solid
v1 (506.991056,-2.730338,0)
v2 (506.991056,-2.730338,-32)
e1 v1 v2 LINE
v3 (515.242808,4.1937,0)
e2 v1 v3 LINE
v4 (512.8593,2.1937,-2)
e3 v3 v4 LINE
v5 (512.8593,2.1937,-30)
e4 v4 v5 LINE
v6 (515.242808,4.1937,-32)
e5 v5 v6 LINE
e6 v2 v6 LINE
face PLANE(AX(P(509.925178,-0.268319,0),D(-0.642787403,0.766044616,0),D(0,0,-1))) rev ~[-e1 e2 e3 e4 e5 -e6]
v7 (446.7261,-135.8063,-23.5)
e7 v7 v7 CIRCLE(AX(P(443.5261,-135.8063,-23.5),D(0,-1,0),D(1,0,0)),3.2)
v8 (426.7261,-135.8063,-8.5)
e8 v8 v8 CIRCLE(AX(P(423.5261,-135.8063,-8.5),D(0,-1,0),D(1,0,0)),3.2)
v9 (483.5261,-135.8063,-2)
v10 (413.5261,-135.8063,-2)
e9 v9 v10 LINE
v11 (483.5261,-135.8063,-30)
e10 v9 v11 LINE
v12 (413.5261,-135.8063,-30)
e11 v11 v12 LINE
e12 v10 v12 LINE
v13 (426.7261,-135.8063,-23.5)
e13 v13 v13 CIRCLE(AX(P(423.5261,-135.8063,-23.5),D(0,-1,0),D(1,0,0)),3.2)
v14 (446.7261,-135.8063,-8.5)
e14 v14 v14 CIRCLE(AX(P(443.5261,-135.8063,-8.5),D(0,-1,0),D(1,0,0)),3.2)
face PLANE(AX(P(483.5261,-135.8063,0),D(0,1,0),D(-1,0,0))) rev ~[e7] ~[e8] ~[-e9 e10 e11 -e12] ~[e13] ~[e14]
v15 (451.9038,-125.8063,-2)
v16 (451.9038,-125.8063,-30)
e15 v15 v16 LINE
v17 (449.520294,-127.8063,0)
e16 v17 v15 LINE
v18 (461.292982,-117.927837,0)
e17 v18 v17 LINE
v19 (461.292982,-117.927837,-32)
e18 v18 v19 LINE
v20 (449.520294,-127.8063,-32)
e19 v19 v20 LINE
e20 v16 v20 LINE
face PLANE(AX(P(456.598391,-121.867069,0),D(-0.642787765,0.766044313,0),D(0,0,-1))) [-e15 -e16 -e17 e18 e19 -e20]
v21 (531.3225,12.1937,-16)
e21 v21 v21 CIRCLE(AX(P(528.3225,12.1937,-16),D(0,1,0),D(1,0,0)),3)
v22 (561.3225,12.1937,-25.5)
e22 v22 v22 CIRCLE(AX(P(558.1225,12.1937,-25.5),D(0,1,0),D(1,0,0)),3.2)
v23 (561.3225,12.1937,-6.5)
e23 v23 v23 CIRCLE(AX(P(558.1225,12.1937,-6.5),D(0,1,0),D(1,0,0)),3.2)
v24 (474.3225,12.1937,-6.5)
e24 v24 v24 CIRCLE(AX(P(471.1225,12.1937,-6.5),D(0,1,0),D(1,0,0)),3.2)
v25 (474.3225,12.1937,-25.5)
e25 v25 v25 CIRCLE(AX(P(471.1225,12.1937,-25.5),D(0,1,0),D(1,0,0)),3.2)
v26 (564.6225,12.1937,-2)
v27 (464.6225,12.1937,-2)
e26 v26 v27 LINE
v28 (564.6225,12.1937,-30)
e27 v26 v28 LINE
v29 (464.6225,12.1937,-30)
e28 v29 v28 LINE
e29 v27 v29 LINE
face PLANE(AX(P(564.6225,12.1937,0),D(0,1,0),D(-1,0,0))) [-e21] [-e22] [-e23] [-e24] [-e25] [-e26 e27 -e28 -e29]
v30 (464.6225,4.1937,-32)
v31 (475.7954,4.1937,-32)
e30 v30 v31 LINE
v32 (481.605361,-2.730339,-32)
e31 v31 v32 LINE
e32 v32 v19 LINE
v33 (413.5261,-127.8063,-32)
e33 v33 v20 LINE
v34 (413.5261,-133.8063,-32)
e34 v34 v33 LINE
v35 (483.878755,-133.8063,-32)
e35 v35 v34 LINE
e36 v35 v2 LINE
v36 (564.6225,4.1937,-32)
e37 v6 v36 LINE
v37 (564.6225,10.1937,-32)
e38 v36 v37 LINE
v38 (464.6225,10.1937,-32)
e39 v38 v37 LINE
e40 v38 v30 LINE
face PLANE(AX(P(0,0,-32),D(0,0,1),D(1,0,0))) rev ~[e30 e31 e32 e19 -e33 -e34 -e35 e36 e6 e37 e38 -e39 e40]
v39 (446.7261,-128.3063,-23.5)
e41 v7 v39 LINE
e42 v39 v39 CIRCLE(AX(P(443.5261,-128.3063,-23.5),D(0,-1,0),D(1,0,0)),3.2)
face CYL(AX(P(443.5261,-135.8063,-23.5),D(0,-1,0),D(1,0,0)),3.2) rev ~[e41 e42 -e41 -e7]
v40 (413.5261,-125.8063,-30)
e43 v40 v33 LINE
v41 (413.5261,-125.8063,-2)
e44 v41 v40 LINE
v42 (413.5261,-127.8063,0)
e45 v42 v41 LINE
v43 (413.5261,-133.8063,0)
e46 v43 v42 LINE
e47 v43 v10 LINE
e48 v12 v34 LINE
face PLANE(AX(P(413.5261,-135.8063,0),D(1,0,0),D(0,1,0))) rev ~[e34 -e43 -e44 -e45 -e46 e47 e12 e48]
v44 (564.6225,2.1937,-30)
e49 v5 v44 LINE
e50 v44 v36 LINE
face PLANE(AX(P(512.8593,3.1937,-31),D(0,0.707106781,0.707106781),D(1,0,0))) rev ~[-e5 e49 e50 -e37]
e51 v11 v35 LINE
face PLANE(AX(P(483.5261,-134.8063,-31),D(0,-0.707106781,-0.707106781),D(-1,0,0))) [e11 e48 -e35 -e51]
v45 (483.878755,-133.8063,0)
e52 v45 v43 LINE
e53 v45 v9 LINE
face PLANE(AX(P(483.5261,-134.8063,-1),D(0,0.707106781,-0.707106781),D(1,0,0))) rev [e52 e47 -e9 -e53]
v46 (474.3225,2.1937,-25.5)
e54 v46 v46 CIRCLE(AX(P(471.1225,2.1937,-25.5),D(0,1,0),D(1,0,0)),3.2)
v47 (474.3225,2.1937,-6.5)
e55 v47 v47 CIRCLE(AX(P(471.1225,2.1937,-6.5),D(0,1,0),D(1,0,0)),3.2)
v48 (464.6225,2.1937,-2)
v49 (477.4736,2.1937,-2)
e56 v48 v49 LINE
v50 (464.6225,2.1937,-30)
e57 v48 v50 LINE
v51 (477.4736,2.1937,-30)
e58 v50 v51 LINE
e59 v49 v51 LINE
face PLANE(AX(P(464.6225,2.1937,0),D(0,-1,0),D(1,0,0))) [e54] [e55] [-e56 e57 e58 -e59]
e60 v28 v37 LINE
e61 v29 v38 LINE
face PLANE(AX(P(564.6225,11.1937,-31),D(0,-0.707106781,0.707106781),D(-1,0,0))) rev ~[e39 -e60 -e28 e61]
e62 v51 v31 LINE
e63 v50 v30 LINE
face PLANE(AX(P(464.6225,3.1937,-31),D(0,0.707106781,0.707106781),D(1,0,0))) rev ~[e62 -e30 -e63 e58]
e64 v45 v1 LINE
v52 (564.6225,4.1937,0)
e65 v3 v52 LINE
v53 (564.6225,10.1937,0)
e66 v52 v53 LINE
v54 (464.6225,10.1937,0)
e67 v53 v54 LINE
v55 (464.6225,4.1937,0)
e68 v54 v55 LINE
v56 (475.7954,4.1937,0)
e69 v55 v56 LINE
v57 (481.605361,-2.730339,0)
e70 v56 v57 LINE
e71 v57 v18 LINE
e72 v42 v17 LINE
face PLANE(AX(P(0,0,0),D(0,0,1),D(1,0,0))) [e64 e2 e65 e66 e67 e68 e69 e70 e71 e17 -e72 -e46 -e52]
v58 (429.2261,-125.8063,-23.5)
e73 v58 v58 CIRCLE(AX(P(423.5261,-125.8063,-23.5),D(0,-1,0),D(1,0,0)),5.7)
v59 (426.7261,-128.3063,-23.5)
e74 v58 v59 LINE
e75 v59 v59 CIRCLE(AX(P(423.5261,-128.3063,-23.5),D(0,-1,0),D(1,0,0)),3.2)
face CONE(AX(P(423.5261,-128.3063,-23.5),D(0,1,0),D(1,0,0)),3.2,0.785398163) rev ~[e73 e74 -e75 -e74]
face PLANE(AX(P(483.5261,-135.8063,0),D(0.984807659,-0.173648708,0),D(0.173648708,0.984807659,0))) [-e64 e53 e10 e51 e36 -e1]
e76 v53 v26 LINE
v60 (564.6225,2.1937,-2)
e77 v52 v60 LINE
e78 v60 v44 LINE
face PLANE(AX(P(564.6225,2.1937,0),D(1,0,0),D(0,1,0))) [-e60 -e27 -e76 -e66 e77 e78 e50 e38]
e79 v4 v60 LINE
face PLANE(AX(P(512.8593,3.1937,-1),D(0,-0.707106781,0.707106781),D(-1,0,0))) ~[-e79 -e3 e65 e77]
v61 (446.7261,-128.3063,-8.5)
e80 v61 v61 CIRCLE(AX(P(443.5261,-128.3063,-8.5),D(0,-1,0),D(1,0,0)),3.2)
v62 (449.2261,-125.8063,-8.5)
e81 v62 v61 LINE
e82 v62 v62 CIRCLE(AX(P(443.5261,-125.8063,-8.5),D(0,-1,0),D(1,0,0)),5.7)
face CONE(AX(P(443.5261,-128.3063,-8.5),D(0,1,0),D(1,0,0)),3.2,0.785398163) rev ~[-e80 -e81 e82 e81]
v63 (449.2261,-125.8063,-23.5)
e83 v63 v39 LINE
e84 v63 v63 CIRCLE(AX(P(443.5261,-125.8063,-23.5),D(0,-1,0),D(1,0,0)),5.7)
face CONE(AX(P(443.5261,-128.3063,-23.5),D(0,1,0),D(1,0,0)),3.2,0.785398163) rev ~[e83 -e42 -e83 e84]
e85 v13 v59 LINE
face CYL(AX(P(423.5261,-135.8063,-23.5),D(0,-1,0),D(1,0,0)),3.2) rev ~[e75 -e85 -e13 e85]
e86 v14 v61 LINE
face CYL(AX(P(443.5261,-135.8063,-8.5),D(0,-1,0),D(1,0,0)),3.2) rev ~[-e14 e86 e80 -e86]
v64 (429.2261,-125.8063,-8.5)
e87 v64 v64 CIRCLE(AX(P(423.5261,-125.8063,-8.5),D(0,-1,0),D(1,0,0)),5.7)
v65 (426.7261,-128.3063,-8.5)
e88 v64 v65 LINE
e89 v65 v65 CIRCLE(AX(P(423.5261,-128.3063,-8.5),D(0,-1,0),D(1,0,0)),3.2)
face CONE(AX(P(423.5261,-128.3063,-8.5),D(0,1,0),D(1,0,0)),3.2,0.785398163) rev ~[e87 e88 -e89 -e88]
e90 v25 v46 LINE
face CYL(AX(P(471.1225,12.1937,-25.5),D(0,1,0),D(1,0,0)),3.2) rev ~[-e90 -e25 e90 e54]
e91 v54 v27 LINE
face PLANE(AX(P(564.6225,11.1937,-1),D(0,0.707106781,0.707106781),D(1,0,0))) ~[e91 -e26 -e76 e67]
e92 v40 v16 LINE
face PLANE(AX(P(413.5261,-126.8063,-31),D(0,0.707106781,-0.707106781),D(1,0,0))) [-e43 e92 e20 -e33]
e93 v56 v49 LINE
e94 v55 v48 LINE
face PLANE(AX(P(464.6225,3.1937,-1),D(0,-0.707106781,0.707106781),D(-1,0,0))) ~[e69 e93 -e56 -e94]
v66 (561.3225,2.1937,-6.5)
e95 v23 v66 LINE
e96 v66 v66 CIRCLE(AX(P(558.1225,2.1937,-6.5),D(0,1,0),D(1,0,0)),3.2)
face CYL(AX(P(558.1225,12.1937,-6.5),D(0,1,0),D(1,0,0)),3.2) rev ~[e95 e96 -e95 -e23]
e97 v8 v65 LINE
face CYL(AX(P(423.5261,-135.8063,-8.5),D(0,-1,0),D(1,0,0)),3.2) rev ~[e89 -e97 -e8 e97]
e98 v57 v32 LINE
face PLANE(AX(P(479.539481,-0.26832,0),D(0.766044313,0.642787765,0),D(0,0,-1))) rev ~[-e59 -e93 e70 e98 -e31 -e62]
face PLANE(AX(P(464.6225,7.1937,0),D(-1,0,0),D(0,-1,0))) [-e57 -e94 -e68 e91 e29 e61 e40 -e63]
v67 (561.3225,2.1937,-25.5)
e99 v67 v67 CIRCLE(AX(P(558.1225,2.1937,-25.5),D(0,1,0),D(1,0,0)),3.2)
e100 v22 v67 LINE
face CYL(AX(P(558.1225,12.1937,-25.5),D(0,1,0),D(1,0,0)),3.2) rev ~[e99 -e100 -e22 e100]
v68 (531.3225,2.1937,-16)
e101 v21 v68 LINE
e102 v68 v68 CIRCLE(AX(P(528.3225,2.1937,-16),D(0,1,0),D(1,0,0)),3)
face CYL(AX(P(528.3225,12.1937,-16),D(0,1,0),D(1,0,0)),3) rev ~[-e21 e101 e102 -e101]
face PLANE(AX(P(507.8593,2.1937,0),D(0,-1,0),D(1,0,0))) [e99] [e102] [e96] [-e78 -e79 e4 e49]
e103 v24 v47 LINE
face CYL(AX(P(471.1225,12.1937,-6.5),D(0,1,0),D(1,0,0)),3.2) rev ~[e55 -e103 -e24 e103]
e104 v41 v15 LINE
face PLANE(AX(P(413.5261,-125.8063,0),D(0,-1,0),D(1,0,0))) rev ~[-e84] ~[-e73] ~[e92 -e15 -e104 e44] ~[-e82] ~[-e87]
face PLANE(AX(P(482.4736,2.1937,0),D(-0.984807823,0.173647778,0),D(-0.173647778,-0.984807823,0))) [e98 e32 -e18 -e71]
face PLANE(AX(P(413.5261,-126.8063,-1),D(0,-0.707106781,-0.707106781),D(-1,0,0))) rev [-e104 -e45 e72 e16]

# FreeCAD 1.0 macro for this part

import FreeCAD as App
import Part
import Sketcher
from FreeCAD import Vector
Q = App.Units.Quantity


def edges_at(feature, points):
    """Names of the edges that pass closest to the given points."""
    edges = feature.Shape.Edges
    near = lambda p: min(range(len(edges)), key=lambda i: edges[i].distToShape(Part.Vertex(*p))[0])
    return sorted({f"Edge{near(p) + 1}" for p in points})


def add_polygon(sketch, points):
    """Adds a closed chain of lines whose ends are joined by coincident constraints."""
    first, n = sketch.GeometryCount, len(points)
    for a, b in zip(points, points[1:] + points[:1]):
        sketch.addGeometry(Part.LineSegment(App.Vector(*a, 0), App.Vector(*b, 0)), False)
    for i in range(n):
        sketch.addConstraint(Sketcher.Constraint("Coincident", first + i, 2, first + (i + 1) % n, 1))

doc = App.newDocument("Part")
params = doc.addObject("Spreadsheet::Sheet", "Params")
for row, (alias, value) in enumerate([
    ("sketch1_width", "70 mm"),
    ("sketch1_height", "10 mm"),
    ("sketch1_width2", "100 mm"),
    ("pad1_length", "32 mm"),
    ("chamfer_size", "5 mm"),
    ("chamfer2_size", "5 mm"),
    ("chamfer3_size", "8 mm"),
    ("chamfer4_size", "2 mm"),
    ("sketch2_diameter", "6 mm"),
    ("sketch2_diameter2", "6.4 mm"),
    ("pocket1_length", "32 mm"),
    ("sketch3_diameter", "6.4 mm"),
    ("pocket2_length", "32 mm"),
    ("chamfer5_size", "2.5 mm"),
], start=1):
    params.set(f"A{row}", alias)
    params.set(f"B{row}", "=" + value)
    params.setAlias(f"B{row}", alias)

body = doc.addObject("PartDesign::Body", "Body")

# Sketch on XY plane
sketch1 = body.newObject("Sketcher::SketchObject", "Sketch")
sketch1.AttachmentSupport = (doc.getObject("XY_Plane"), [""])
sketch1.MapMode = "FlatFace"
add_polygon(sketch1, [(414, -136), (484, -136), (508, 2), (565, 2), (565, 12), (465, 12), (465, 2), (482, 2), (460, -126), (414, -126)])  # lines 0-9
sketch1.addConstraint([
    Sketcher.Constraint("Horizontal", 0),
    Sketcher.Constraint("Horizontal", 2),
    Sketcher.Constraint("Vertical", 3),
    Sketcher.Constraint("Horizontal", 4),
    Sketcher.Constraint("Vertical", 5),
    Sketcher.Constraint("Horizontal", 6),
    Sketcher.Constraint("Horizontal", 8),
    Sketcher.Constraint("Vertical", 9),
    Sketcher.Constraint("Parallel", 1, 7),
    Sketcher.Constraint("Horizontal", 2, 2, 5, 2),
    Sketcher.Constraint("Equal", 5, 9),
    Sketcher.Constraint("DistanceX", 0, 1, 0, 2, Q("70 mm")),
    Sketcher.Constraint("DistanceY", 3, 1, 3, 2, Q("10 mm")),
    Sketcher.Constraint("Angle", 1, Q("80 deg")),
    Sketcher.Constraint("DistanceX", 4, 2, 4, 1, Q("100 mm")),
    Sketcher.Constraint("DistanceY", 0, 2, 1, 2, Q("138 mm")),
    Sketcher.Constraint("DistanceX", 6, 1, 6, 2, Q("17.851 mm")),
    Sketcher.Constraint("DistanceX", 2, 1, 2, 2, Q("56.7632 mm")),
    Sketcher.Constraint("DistanceX", -1, 1, 0, 2, Q("483.526 mm")),
    Sketcher.Constraint("DistanceY", 0, 2, -1, 1, Q("135.8063 mm")),
])
sketch1.setExpression("Constraints[21]", "Params.sketch1_width")
sketch1.setExpression("Constraints[22]", "Params.sketch1_height")
sketch1.setExpression("Constraints[24]", "Params.sketch1_width2")
pad1 = body.newObject("PartDesign::Pad", "Pad")
pad1.Profile = sketch1
pad1.setExpression("Length", "Params.pad1_length")
pad1.Reversed = True
doc.recompute()

chamfer = body.newObject("PartDesign::Chamfer", "Chamfer")
chamfer.Base = (pad1, edges_at(pad1, [(507.859, 2.194, -16)]))
chamfer.setExpression("Size", "Params.chamfer_size")
doc.recompute()

chamfer2 = body.newObject("PartDesign::Chamfer", "Chamfer001")
chamfer2.Base = (chamfer, edges_at(chamfer, [(482.474, 2.194, -16)]))
chamfer2.setExpression("Size", "Params.chamfer2_size")
doc.recompute()

chamfer3 = body.newObject("PartDesign::Chamfer", "Chamfer002")
chamfer3.Base = (chamfer2, edges_at(chamfer2, [(459.904, -125.806, -16)]))
chamfer3.setExpression("Size", "Params.chamfer3_size")
doc.recompute()

chamfer4 = body.newObject("PartDesign::Chamfer", "Chamfer003")
chamfer4.Base = (chamfer3, edges_at(chamfer3, [
    (448.526, -135.806, 0),
    (448.526, -135.806, -32),
    (514.622, 12.194, 0),
    (514.622, 12.194, -32),
    (538.741, 2.194, -32),
    (538.741, 2.194, 0),
    (471.048, 2.194, -32),
    (471.048, 2.194, 0),
    (432.715, -125.806, -32),
    (432.715, -125.806, 0),
]))
chamfer4.setExpression("Size", "Params.chamfer4_size")

# Sketch on XZ plane
sketch2 = body.newObject("Sketcher::SketchObject", "Sketch001")
sketch2.AttachmentSupport = (doc.getObject("XZ_Plane"), [""])
sketch2.MapMode = "FlatFace"
sketch2.AttachmentOffset = App.Placement(Vector(0, 0, -12.1937), App.Rotation())
sketch2.addGeometry([
    Part.Circle(Vector(471.1, -25.5, 0), Vector(0, 0, 1), 3.2),  # 0
    Part.Circle(Vector(471.1, -6.5, 0), Vector(0, 0, 1), 3.2),  # 1
    Part.Circle(Vector(528.3, -16, 0), Vector(0, 0, 1), 3),  # 2
    Part.Circle(Vector(558.1, -25.5, 0), Vector(0, 0, 1), 3.2),  # 3
    Part.Circle(Vector(558.1, -6.5, 0), Vector(0, 0, 1), 3.2),  # 4
], False)
sketch2.addConstraint([
    Sketcher.Constraint("Equal", 0, 1),
    Sketcher.Constraint("Equal", 1, 3),
    Sketcher.Constraint("Equal", 3, 4),
    Sketcher.Constraint("Horizontal", 0, 3, 3, 3),
    Sketcher.Constraint("Horizontal", 1, 3, 4, 3),
    Sketcher.Constraint("Vertical", 0, 3, 1, 3),
    Sketcher.Constraint("Vertical", 3, 3, 4, 3),
    Sketcher.Constraint("Diameter", 2, Q("6 mm")),
    Sketcher.Constraint("Diameter", 0, Q("6.4 mm")),
    Sketcher.Constraint("DistanceY", 2, 3, -1, 1, Q("16 mm")),
    Sketcher.Constraint("DistanceY", 0, 3, 1, 3, Q("19 mm")),
    Sketcher.Constraint("DistanceX", 0, 3, 3, 3, Q("87 mm")),
    Sketcher.Constraint("DistanceY", 0, 3, -1, 1, Q("25.5 mm")),
    Sketcher.Constraint("DistanceX", 0, 3, 2, 3, Q("57.2 mm")),
    Sketcher.Constraint("DistanceX", -1, 1, 0, 3, Q("471.1225 mm")),
])
sketch2.setExpression("Constraints[7]", "Params.sketch2_diameter")
sketch2.setExpression("Constraints[8]", "Params.sketch2_diameter2")
pocket1 = body.newObject("PartDesign::Pocket", "Pocket")
pocket1.Profile = sketch2
pocket1.setExpression("Length", "Params.pocket1_length")
pocket1.Reversed = True

# Sketch on XZ plane
sketch3 = body.newObject("Sketcher::SketchObject", "Sketch002")
sketch3.AttachmentSupport = (doc.getObject("XZ_Plane"), [""])
sketch3.MapMode = "FlatFace"
sketch3.AttachmentOffset = App.Placement(Vector(0, 0, 135.8063), App.Rotation())
sketch3.addGeometry([
    Part.Circle(Vector(423.5, -8.5, 0), Vector(0, 0, 1), 3.2),
    Part.Circle(Vector(423.5, -23.5, 0), Vector(0, 0, 1), 3.2),
    Part.Circle(Vector(443.5, -8.5, 0), Vector(0, 0, 1), 3.2),
    Part.Circle(Vector(443.5, -23.5, 0), Vector(0, 0, 1), 3.2),
], False)
sketch3.addConstraint([
    Sketcher.Constraint("Equal", 0, 1),
    Sketcher.Constraint("Equal", 1, 2),
    Sketcher.Constraint("Equal", 2, 3),
    Sketcher.Constraint("Horizontal", 0, 3, 2, 3),
    Sketcher.Constraint("Horizontal", 1, 3, 3, 3),
    Sketcher.Constraint("Vertical", 0, 3, 1, 3),
    Sketcher.Constraint("Vertical", 2, 3, 3, 3),
    Sketcher.Constraint("Diameter", 0, Q("6.4 mm")),
    Sketcher.Constraint("DistanceY", 1, 3, 0, 3, Q("15 mm")),
    Sketcher.Constraint("DistanceX", 0, 3, 2, 3, Q("20 mm")),
    Sketcher.Constraint("DistanceY", 0, 3, -1, 1, Q("8.5 mm")),
    Sketcher.Constraint("DistanceX", -1, 1, 0, 3, Q("423.526 mm")),
])
sketch3.setExpression("Constraints[7]", "Params.sketch3_diameter")
pocket2 = body.newObject("PartDesign::Pocket", "Pocket001")
pocket2.Profile = sketch3
pocket2.setExpression("Length", "Params.pocket2_length")
doc.recompute()

chamfer5 = body.newObject("PartDesign::Chamfer", "Chamfer004")
chamfer5.Base = (pocket2, edges_at(pocket2, [
    (440.326, -125.806, -23.5),
    (440.326, -125.806, -8.5),
    (420.326, -125.806, -23.5),
    (420.326, -125.806, -8.5),
]))
chamfer5.setExpression("Size", "Params.chamfer5_size")

doc.recompute()
